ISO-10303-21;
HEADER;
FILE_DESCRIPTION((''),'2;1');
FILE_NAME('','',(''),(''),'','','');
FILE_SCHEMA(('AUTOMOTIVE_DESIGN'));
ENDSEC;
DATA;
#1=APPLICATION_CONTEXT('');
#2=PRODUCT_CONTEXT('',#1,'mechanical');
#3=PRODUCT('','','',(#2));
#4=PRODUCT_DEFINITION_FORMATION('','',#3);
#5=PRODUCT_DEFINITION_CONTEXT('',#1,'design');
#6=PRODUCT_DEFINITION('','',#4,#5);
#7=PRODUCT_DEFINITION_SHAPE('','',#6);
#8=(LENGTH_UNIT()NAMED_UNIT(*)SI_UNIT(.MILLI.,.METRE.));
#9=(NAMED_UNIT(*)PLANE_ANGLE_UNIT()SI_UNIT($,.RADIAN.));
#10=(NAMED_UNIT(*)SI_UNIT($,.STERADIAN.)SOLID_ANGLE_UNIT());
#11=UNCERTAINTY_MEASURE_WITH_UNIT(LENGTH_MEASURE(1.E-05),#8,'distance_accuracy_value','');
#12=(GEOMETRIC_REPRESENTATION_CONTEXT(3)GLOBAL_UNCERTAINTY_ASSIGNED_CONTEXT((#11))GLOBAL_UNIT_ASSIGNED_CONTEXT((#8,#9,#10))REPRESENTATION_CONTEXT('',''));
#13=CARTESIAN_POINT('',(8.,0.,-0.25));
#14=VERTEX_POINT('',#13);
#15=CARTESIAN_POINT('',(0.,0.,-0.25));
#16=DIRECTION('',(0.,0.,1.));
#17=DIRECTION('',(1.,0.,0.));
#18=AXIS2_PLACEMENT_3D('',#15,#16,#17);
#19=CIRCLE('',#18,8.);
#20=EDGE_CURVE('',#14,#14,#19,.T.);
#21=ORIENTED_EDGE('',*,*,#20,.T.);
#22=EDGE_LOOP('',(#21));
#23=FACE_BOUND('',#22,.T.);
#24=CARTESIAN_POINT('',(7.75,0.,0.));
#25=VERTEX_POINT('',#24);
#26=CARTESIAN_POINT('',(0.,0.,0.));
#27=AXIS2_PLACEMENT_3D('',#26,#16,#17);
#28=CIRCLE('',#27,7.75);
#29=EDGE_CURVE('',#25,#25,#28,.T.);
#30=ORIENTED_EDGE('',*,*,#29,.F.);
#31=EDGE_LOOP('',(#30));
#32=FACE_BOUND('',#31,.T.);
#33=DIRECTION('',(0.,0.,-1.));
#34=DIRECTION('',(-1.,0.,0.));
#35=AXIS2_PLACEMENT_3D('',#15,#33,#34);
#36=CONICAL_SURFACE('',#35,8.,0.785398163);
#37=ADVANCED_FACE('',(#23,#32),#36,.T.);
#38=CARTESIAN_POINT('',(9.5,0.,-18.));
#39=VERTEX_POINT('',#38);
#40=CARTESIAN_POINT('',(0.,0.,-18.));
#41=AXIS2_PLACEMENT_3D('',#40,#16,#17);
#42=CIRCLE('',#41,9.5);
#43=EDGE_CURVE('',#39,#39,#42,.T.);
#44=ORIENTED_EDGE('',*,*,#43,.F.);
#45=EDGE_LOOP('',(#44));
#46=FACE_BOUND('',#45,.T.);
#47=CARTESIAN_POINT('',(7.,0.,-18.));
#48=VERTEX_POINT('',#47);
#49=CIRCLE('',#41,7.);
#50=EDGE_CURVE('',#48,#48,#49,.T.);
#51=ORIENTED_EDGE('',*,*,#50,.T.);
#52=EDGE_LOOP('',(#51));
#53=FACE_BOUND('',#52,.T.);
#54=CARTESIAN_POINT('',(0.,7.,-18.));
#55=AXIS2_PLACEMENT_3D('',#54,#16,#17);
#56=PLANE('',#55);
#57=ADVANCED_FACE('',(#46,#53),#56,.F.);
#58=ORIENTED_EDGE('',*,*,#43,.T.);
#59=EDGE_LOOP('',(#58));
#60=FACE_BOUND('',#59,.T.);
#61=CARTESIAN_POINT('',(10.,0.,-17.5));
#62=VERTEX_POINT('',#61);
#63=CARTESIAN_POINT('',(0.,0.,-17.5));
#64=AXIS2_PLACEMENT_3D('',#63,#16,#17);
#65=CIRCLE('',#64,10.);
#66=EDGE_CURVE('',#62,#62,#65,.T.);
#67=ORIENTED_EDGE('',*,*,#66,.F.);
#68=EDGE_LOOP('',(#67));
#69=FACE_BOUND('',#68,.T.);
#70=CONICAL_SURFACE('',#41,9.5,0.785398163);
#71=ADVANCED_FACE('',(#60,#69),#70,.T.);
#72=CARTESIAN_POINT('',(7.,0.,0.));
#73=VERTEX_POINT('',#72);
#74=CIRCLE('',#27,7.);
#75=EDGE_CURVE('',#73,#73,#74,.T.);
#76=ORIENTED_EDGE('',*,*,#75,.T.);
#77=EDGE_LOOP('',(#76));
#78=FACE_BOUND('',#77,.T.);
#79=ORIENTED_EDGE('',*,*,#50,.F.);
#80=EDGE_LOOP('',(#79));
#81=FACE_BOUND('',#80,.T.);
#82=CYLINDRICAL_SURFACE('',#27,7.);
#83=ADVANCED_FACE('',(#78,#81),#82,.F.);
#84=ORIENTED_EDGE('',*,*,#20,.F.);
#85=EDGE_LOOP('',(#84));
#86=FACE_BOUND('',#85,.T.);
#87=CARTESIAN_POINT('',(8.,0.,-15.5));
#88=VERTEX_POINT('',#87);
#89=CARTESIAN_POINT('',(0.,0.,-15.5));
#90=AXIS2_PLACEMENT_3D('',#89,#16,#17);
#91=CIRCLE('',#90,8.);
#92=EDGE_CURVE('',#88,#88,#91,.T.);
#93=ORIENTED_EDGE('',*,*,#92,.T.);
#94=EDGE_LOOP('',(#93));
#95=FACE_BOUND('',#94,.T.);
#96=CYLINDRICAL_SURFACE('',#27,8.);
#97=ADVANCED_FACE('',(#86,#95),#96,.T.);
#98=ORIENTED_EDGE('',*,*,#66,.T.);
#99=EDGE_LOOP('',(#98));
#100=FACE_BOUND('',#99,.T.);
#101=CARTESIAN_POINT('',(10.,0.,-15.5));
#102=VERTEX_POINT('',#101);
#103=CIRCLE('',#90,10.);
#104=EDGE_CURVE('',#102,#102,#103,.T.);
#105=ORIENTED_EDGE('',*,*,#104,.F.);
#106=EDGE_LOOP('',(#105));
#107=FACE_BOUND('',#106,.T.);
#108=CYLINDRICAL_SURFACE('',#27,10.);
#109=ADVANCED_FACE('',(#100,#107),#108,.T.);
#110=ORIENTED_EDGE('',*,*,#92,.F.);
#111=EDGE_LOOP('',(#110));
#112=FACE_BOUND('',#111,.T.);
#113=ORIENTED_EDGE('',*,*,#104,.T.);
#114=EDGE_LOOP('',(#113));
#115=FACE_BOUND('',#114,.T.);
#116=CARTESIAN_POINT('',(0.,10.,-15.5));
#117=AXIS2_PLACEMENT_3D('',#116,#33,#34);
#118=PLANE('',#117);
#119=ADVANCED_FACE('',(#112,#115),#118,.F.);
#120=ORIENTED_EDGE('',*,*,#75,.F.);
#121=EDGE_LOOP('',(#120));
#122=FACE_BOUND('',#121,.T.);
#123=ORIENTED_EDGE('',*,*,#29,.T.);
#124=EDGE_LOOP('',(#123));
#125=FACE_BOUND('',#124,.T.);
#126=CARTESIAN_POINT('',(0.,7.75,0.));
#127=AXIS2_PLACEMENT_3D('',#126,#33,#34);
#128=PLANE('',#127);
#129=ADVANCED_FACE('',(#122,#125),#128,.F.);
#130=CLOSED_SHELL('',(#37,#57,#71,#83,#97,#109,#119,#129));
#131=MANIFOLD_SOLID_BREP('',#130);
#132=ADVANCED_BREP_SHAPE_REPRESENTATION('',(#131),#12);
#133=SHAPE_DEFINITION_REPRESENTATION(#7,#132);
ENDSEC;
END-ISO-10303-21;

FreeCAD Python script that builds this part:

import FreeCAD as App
import Part
import Sketcher
from FreeCAD import Vector
Q = App.Units.Quantity


def add_polygon(sketch, points):
    """Adds a closed chain of lines whose ends are joined by coincident constraints."""
    first, n = sketch.GeometryCount, len(points)
    for a, b in zip(points, points[1:] + points[:1]):
        sketch.addGeometry(Part.LineSegment(App.Vector(*a, 0), App.Vector(*b, 0)), False)
    for i in range(n):
        sketch.addConstraint(Sketcher.Constraint("Coincident", first + i, 2, first + (i + 1) % n, 1))

doc = App.newDocument("Part")
body = doc.addObject("PartDesign::Body", "Body")

sketch1 = doc.addObject("Sketcher::SketchObject", "Sketch")
body.addObject(sketch1)
sketch1.AttachmentSupport = (doc.YZ_Plane, [""])
sketch1.MapMode = "FlatFace"
add_polygon(sketch1, [(7, 0), (7, -18), (9.5, -18), (10, -17.5), (10, -15.5), (8, -15.5), (8, -0.25), (7.75, 0)])
sketch1.addConstraint(Sketcher.Constraint("Vertical", 0))
sketch1.addConstraint(Sketcher.Constraint("Horizontal", 1))
sketch1.addConstraint(Sketcher.Constraint("Vertical", 3))
sketch1.addConstraint(Sketcher.Constraint("Horizontal", 4))
sketch1.addConstraint(Sketcher.Constraint("Vertical", 5))
sketch1.addConstraint(Sketcher.Constraint("Horizontal", 7))
sketch1.addConstraint(Sketcher.Constraint("PointOnObject", 6, 2, -1))
sketch1.addConstraint(Sketcher.Constraint("Perpendicular", 2, 6))
sketch1.addConstraint(Sketcher.Constraint("Equal", 4, 3))
sketch1.addConstraint(Sketcher.Constraint("DistanceX", 4, 2, 4, 1, 2.0))
sketch1.addConstraint(Sketcher.Constraint("DistanceY", 0, 2, 0, 1, 18.0))
sketch1.addConstraint(Sketcher.Constraint("Angle", 2, Q("45 deg")))
sketch1.addConstraint(Sketcher.Constraint("DistanceX", 1, 1, 1, 2, 2.5))
sketch1.addConstraint(Sketcher.Constraint("DistanceX", -1, 1, 0, 2, 7.0))
sketch1.addConstraint(Sketcher.Constraint("DistanceX", -1, 1, 2, 2, 10.0))
sketch1.addConstraint(Sketcher.Constraint("DistanceX", 7, 2, 7, 1, 0.75))
revolution = doc.addObject("PartDesign::Revolution", "Revolution")
body.addObject(revolution)
revolution.Profile = sketch1
revolution.ReferenceAxis = (sketch1, ["V_Axis"])
revolution.Angle = 360

doc.recompute()
